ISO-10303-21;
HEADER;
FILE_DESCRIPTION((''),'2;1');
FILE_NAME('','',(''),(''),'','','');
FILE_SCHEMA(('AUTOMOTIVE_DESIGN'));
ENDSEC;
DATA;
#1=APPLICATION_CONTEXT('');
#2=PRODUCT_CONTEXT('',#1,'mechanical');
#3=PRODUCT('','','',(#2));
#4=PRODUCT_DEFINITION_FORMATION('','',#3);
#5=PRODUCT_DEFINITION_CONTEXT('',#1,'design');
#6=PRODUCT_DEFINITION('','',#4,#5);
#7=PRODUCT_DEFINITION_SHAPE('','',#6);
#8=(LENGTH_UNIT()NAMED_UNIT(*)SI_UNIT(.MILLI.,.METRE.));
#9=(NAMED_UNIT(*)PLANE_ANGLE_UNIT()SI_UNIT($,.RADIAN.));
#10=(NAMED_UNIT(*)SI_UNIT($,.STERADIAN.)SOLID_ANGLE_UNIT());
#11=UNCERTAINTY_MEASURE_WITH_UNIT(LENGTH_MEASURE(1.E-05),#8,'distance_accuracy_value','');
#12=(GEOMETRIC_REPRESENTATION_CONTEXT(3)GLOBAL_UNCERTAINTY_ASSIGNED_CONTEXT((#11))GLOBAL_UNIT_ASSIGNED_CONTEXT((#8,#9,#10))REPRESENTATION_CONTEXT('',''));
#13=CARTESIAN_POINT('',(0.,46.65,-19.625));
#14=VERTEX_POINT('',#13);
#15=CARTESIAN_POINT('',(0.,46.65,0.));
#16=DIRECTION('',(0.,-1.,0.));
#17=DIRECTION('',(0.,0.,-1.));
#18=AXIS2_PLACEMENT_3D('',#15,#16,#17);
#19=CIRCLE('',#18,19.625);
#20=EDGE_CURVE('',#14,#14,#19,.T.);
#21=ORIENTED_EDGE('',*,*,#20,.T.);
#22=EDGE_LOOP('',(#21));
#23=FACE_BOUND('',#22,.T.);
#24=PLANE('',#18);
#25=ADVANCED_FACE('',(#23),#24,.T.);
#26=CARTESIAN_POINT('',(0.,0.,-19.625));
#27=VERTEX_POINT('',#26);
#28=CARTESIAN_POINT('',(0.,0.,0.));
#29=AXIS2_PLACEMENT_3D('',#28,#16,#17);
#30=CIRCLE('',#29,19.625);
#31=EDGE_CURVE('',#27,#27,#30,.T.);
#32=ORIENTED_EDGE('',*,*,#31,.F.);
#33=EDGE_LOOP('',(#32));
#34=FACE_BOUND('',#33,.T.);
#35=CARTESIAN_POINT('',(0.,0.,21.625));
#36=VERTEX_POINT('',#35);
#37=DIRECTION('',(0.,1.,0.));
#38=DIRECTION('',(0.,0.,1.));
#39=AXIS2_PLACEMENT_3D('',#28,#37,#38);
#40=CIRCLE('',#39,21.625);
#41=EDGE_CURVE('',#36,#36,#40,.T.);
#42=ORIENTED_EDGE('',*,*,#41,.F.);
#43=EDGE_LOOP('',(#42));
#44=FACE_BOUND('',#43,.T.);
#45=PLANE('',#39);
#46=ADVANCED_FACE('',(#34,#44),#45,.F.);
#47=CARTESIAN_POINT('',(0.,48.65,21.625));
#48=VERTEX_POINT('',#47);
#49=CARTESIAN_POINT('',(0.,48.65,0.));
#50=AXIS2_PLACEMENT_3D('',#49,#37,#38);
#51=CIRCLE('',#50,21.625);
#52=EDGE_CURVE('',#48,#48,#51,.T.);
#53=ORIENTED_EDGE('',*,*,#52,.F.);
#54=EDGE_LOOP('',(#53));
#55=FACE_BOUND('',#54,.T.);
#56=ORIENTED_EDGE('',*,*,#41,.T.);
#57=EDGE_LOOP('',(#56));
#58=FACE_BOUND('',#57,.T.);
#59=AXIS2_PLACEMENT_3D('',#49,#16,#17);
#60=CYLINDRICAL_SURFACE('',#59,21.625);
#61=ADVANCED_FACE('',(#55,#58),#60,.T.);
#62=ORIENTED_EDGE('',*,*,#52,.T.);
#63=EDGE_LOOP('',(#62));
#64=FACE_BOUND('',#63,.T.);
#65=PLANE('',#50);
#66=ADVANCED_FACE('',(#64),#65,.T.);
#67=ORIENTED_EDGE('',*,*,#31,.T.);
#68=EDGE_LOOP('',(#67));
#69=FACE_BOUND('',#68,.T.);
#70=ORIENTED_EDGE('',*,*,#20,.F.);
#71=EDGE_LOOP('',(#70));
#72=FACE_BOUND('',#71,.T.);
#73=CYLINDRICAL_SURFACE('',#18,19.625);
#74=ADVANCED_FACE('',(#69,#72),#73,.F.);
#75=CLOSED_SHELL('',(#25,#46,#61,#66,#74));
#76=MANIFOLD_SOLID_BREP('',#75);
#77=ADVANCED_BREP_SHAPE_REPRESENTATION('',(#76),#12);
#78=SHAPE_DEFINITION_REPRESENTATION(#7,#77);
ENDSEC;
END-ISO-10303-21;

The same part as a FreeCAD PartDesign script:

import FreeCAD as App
import Part
import Sketcher

doc = App.newDocument("Part")
body = doc.addObject("PartDesign::Body", "Body")

# Sketch on XZ plane
sketch1 = doc.addObject("Sketcher::SketchObject", "Sketch")
body.addObject(sketch1)
sketch1.AttachmentSupport = (doc.XZ_Plane, [""])
sketch1.MapMode = "FlatFace"
sketch1.addGeometry(Part.Circle(App.Vector(0, 0, 0), App.Vector(0, 0, 1), 22), False)
sketch1.addConstraint(Sketcher.Constraint("Coincident", 0, 3, -1, 1))
sketch1.addConstraint(Sketcher.Constraint("Diameter", 0, 43.25))
pad1 = doc.addObject("PartDesign::Pad", "Pad")
body.addObject(pad1)
pad1.Profile = sketch1
pad1.Length = 48.65
pad1.Reversed = True

# Sketch on XZ plane
sketch2 = doc.addObject("Sketcher::SketchObject", "Sketch001")
body.addObject(sketch2)
sketch2.AttachmentSupport = (doc.XZ_Plane, [""])
sketch2.MapMode = "FlatFace"
sketch2.addGeometry(Part.Circle(App.Vector(0, 0, 0), App.Vector(0, 0, 1), 20), False)
sketch2.addConstraint(Sketcher.Constraint("Coincident", 0, 3, -1, 1))
sketch2.addConstraint(Sketcher.Constraint("Diameter", 0, 39.25))
pocket1 = doc.addObject("PartDesign::Pocket", "Pocket")
body.addObject(pocket1)
pocket1.Profile = sketch2
pocket1.Length = 46.65

doc.recompute()
